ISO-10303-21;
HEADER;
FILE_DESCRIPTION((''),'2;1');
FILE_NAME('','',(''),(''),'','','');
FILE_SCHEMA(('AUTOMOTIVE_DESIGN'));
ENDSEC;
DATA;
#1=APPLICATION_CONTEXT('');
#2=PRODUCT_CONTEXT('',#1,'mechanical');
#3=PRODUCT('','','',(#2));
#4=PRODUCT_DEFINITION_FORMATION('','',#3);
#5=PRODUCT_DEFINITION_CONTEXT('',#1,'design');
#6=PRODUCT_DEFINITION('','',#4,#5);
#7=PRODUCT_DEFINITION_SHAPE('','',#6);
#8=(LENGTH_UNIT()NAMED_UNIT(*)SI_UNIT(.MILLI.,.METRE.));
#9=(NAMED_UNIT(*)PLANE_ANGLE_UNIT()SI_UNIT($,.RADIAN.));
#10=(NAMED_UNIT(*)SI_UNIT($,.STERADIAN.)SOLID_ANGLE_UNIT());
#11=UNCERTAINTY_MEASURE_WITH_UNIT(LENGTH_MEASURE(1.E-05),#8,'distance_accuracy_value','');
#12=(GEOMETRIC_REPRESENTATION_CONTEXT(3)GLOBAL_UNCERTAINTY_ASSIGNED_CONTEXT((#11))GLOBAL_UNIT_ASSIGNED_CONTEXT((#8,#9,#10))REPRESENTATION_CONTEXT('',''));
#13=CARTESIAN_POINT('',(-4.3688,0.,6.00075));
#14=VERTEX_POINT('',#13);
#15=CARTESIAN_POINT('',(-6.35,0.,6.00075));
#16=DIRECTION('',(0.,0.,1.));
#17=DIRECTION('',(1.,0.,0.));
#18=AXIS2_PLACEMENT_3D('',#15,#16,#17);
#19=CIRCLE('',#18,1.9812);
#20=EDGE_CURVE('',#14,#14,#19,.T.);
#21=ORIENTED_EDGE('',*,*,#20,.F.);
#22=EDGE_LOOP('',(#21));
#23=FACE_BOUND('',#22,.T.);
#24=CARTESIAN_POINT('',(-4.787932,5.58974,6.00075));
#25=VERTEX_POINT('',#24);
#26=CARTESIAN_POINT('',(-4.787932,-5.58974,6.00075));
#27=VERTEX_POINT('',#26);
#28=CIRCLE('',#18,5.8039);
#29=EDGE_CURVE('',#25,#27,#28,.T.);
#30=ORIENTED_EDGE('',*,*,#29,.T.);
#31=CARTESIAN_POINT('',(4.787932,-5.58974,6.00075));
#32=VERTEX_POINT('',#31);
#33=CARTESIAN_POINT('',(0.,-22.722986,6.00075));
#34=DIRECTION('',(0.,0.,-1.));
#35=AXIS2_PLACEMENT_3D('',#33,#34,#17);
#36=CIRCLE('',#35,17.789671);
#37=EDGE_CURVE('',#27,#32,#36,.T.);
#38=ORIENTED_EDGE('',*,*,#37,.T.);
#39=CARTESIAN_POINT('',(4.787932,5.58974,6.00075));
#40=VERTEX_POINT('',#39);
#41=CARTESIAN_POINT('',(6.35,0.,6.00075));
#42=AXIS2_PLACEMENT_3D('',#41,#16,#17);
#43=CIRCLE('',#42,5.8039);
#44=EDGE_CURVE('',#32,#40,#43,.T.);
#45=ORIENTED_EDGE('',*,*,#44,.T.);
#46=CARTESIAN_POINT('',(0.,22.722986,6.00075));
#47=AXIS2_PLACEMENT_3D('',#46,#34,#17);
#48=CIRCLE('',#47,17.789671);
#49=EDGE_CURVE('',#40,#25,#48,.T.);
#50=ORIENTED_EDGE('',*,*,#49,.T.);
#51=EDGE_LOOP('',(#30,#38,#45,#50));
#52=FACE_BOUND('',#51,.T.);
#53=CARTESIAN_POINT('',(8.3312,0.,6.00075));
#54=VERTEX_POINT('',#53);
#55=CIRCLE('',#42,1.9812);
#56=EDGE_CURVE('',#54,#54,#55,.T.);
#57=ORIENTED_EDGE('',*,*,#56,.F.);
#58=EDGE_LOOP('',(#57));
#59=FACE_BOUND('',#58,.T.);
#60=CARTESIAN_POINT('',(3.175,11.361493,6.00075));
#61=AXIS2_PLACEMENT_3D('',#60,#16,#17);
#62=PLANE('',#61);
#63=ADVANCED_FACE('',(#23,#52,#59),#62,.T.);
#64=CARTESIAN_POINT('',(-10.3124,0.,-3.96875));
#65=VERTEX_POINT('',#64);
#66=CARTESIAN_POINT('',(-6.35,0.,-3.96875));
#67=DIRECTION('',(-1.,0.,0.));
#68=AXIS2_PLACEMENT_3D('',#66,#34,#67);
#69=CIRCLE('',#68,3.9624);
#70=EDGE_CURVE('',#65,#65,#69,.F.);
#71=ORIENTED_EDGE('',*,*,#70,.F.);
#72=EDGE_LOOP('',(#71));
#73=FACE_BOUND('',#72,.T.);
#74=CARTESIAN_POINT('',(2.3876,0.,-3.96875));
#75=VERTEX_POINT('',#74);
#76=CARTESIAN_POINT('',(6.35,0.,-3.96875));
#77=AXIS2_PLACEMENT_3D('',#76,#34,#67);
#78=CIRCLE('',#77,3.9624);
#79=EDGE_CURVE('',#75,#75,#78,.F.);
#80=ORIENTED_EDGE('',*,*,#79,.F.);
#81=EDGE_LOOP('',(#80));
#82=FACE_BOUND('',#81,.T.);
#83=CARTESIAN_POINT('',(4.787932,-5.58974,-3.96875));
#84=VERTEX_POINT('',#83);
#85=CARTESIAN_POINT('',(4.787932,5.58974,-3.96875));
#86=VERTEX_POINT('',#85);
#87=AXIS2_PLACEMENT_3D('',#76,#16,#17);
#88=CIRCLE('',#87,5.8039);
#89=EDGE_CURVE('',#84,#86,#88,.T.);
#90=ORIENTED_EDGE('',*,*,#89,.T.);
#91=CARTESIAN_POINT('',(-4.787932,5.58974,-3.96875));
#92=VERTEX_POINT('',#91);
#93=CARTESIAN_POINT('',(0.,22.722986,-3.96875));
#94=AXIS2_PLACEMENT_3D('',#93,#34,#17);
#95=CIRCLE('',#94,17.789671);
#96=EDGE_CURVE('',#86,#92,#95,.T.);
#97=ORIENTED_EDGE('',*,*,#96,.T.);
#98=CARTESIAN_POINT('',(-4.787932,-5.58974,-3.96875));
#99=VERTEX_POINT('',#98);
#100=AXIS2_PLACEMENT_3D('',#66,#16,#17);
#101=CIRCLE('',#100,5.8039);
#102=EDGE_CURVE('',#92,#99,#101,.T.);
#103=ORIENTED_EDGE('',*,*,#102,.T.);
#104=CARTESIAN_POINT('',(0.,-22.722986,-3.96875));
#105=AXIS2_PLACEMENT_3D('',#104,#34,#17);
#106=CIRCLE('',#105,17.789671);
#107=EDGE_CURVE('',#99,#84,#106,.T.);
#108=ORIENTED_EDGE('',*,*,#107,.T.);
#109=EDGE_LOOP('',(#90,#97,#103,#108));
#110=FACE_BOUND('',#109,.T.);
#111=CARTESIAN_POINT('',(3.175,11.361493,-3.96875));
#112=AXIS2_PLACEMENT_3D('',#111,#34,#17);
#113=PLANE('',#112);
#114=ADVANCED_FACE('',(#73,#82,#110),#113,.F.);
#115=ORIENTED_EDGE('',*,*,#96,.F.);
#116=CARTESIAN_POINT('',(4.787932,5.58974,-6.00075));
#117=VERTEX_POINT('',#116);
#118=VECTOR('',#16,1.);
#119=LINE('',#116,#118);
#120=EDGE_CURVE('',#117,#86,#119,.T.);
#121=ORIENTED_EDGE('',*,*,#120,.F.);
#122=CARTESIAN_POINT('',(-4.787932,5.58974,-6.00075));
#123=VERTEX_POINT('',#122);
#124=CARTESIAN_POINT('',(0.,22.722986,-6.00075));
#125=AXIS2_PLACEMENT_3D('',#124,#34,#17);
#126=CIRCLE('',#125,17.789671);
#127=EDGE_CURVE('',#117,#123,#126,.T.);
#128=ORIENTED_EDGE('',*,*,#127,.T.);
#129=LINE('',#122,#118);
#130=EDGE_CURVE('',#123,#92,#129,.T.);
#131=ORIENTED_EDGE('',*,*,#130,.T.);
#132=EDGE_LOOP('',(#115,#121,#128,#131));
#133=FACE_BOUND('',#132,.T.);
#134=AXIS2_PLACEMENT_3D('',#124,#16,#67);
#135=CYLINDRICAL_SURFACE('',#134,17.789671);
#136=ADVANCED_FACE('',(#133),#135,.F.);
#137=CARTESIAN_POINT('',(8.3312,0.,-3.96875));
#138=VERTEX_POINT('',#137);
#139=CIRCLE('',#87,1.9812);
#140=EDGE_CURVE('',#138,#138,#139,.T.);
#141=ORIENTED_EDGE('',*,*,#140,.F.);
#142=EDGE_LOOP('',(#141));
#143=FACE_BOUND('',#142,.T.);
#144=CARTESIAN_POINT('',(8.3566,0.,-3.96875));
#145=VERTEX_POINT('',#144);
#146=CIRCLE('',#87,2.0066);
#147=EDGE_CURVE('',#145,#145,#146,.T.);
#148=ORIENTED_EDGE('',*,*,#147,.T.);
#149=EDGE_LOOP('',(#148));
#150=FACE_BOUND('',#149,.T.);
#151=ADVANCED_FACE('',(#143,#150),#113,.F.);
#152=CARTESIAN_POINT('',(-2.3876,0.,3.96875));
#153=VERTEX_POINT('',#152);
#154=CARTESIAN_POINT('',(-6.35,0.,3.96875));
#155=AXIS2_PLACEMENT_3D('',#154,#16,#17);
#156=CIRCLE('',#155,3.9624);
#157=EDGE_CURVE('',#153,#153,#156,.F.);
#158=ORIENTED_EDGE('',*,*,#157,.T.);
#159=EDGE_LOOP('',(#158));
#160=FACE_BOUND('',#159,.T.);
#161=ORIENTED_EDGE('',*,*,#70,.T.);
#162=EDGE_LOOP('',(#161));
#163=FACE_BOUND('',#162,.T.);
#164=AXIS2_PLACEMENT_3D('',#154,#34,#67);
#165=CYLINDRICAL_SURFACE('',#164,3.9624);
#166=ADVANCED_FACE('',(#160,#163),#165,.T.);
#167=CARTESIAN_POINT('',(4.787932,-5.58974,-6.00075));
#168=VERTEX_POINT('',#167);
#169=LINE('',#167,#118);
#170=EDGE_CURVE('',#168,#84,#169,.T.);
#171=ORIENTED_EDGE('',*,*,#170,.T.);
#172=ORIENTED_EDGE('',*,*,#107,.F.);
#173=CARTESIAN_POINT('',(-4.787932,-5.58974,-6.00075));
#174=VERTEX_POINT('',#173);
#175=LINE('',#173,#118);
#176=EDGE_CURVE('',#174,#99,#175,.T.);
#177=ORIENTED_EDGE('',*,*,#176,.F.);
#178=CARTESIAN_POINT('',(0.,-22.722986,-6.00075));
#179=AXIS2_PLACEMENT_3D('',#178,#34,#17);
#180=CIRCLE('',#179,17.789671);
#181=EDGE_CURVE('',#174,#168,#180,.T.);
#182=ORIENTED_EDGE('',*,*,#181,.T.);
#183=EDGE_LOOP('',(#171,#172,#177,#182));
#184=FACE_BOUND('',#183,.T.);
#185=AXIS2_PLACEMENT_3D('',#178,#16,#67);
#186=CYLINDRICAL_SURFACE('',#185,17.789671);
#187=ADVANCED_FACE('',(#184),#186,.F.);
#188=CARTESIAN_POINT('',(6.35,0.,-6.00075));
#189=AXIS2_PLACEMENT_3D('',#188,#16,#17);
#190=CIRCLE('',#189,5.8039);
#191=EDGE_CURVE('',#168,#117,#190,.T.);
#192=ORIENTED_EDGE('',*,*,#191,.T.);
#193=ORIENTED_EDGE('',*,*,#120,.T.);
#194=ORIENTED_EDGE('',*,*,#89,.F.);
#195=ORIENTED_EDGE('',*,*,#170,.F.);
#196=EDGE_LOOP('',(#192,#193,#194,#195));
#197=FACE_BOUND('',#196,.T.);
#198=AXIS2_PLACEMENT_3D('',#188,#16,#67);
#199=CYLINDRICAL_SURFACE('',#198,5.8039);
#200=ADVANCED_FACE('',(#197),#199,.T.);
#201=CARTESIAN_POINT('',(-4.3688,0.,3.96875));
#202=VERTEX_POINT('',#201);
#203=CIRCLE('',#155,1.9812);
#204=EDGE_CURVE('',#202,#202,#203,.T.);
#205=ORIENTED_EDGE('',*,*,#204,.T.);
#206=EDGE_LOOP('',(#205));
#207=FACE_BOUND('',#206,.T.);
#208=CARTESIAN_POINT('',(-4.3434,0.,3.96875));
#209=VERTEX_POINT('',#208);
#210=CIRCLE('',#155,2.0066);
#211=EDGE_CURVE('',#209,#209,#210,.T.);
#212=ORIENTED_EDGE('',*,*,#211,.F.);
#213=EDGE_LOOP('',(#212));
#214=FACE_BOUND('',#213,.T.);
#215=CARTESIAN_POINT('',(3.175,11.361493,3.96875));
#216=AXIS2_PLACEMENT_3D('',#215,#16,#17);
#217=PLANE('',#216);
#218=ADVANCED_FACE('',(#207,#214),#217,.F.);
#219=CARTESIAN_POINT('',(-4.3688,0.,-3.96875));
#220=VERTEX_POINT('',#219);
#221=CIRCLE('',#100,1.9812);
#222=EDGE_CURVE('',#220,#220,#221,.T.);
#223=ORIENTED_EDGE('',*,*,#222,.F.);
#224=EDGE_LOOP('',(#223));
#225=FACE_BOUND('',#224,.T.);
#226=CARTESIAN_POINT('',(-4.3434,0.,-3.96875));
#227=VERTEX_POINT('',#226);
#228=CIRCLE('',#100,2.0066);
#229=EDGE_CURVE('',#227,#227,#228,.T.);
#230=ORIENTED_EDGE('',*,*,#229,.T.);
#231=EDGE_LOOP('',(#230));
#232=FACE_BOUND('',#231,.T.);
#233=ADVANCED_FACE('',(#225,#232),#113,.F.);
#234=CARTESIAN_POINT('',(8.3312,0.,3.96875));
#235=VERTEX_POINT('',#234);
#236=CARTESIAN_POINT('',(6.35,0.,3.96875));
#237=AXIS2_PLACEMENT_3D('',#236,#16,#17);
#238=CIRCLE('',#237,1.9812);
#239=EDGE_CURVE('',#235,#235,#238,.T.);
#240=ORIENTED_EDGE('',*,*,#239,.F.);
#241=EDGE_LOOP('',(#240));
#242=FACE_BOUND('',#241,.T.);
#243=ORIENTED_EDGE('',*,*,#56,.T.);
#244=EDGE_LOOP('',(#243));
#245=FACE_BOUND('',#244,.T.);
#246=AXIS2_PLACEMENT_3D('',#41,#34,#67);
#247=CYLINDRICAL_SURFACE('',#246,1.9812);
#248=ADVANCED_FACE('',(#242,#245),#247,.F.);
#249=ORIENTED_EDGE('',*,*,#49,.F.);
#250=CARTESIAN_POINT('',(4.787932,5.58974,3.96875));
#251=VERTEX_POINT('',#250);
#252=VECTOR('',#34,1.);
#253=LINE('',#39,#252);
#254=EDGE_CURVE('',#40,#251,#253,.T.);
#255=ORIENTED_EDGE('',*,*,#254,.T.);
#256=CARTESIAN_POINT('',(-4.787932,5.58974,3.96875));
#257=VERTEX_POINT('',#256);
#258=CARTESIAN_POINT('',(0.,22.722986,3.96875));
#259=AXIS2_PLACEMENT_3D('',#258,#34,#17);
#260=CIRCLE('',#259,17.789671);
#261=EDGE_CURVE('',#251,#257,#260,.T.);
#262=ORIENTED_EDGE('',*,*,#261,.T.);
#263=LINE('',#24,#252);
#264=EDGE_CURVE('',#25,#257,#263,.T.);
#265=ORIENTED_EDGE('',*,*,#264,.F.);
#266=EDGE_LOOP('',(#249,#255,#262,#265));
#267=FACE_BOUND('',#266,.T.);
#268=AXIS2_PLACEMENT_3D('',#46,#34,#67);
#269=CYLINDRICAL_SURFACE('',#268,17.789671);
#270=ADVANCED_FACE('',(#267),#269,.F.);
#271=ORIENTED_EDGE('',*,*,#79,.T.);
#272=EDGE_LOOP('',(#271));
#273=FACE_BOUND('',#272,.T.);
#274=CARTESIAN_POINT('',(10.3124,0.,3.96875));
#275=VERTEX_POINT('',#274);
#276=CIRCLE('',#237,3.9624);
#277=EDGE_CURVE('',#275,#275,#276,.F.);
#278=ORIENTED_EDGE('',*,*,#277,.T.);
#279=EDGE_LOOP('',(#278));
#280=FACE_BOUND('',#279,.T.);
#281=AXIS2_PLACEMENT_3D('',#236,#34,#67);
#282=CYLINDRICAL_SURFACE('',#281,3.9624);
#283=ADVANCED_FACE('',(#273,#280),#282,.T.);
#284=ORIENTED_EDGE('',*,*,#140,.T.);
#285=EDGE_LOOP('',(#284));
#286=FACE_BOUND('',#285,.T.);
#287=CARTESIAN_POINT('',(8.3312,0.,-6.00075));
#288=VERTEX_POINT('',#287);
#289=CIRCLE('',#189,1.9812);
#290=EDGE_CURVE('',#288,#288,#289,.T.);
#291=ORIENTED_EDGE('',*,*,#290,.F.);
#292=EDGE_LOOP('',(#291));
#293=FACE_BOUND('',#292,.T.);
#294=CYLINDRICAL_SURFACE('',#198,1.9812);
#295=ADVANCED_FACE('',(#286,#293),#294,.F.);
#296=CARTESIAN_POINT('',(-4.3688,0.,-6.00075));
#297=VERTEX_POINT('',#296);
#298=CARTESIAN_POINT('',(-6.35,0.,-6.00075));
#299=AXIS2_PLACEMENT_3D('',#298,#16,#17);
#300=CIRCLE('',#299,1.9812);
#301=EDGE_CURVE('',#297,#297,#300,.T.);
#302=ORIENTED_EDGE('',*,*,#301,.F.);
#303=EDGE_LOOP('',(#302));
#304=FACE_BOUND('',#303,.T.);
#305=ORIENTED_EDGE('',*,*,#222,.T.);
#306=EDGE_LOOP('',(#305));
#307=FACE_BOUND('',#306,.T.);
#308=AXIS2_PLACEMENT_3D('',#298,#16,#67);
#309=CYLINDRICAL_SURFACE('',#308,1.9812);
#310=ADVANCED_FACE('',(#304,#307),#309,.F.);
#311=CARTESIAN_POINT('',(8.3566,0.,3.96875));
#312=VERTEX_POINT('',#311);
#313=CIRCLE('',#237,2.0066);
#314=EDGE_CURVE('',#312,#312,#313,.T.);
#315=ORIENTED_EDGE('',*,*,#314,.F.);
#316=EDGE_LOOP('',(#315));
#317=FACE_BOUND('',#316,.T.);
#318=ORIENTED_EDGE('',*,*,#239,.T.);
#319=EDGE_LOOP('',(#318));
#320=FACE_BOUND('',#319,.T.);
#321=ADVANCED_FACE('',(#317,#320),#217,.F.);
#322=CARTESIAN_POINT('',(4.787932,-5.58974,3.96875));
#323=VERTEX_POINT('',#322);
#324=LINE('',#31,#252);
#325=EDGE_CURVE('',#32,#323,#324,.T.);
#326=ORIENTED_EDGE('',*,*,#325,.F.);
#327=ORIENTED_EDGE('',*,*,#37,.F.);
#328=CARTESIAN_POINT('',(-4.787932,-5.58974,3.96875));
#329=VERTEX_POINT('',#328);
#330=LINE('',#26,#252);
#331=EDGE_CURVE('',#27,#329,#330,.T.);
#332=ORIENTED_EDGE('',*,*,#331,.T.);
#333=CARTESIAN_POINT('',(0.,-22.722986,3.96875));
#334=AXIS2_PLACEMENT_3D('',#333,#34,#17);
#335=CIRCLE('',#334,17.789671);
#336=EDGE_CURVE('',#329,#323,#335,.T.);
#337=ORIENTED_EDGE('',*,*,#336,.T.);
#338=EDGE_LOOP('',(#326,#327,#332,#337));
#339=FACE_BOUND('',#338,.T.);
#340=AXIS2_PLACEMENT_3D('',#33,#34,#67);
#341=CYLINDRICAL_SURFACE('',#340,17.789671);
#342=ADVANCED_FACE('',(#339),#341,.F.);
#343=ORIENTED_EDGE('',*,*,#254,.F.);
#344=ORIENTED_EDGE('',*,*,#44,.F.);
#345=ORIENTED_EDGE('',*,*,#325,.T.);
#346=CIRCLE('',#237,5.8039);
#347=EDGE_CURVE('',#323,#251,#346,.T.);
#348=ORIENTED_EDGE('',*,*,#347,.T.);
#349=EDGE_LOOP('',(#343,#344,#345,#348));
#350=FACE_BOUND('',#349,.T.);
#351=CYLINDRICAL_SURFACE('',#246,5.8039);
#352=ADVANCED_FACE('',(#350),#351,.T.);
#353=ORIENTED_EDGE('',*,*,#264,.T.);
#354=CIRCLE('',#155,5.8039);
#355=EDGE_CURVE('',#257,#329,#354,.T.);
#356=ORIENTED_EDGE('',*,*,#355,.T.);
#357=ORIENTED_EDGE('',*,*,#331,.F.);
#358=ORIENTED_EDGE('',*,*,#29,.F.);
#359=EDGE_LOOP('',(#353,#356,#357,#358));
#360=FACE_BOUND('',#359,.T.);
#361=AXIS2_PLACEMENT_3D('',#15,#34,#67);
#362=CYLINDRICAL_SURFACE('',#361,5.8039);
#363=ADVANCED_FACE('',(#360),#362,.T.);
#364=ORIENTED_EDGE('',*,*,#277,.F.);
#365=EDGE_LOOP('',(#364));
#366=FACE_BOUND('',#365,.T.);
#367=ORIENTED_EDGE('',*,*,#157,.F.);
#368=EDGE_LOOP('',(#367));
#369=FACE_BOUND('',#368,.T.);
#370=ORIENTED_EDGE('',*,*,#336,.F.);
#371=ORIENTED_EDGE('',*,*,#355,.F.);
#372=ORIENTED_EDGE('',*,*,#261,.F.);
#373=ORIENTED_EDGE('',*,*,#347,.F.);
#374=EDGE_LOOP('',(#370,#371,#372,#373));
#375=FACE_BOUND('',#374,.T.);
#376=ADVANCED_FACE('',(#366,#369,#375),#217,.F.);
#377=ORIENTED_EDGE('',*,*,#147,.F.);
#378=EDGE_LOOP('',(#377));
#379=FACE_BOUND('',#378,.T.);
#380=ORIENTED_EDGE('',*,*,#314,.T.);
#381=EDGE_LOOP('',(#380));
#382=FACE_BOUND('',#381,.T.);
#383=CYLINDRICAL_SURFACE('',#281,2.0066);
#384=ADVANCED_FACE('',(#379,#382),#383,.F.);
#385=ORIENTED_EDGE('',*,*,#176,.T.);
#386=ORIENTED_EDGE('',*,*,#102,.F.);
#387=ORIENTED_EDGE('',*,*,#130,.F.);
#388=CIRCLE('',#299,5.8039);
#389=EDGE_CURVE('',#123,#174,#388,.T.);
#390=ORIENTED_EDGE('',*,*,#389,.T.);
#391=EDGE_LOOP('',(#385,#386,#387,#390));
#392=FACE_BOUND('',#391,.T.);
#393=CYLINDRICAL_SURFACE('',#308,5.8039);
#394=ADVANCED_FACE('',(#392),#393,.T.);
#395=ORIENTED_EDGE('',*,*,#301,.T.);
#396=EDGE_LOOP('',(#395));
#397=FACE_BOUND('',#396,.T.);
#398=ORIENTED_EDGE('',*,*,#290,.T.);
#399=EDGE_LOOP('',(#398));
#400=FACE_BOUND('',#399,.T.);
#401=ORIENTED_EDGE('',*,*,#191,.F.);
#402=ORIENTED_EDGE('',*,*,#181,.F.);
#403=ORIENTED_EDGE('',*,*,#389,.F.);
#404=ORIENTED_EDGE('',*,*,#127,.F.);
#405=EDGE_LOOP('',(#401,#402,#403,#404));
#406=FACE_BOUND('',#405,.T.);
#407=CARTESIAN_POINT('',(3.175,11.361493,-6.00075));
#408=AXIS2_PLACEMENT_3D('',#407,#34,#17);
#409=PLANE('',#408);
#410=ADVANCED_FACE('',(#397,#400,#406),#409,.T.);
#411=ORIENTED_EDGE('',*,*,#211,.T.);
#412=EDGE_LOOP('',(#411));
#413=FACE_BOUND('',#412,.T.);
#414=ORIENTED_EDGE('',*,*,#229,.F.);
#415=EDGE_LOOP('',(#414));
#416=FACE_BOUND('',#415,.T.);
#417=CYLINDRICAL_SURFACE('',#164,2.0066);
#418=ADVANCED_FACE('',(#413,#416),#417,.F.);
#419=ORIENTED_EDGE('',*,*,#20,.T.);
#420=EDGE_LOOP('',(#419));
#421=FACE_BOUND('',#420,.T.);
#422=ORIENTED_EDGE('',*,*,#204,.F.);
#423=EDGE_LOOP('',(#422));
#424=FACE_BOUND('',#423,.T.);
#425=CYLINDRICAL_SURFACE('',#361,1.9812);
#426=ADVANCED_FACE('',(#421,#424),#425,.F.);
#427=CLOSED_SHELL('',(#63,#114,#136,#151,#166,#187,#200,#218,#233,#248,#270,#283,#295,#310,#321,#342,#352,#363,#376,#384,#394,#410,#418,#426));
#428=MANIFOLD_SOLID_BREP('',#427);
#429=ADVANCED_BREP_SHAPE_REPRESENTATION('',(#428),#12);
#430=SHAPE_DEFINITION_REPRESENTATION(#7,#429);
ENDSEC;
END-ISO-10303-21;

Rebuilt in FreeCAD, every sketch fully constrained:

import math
import FreeCAD as App
import Part
import Sketcher
from FreeCAD import Vector
Q = App.Units.Quantity

doc = App.newDocument("Part")
params = doc.addObject("Spreadsheet::Sheet", "Params")
for row, (alias, value) in enumerate([
    ("sketch1_diameter", "0.312 in"),
    ("sketch1_diameter2", "0.158 in"),
    ("pad1_length", "0.3125 in"),
    ("sketch2_diameter", "0.312 in"),
    ("sketch2_diameter2", "0.158 in"),
    ("pad2_length", "0.3125 in"),
    ("sketch3_diameter", "0.156 in"),
    ("pad3_length", "0.08 in"),
], start=1):
    params.set(f"A{row}", alias)
    params.set(f"B{row}", "=" + value)
    params.setAlias(f"B{row}", alias)

body = doc.addObject("PartDesign::Body", "Body")

# Sketch on XY plane
sketch1 = body.newObject("Sketcher::SketchObject", "Sketch")
sketch1.AttachmentSupport = (doc.getObject("XY_Plane"), [""])
sketch1.MapMode = "FlatFace"
sketch1.addGeometry([
    Part.Circle(Vector(-6.3, 0, 0), Vector(0, 0, 1), 4),
    Part.Circle(Vector(-6.3, 0, 0), Vector(0, 0, 1), 2),
], False)
sketch1.addConstraint([
    Sketcher.Constraint("Coincident", 1, 3, 0, 3),
    Sketcher.Constraint("PointOnObject", 0, 3, -1),
    Sketcher.Constraint("Diameter", 0, Q("0.312 in")),
    Sketcher.Constraint("Diameter", 1, Q("0.158 in")),
    Sketcher.Constraint("DistanceX", 0, 3, -1, 1, Q("0.25 in")),
])
sketch1.setExpression("Constraints[2]", "Params.sketch1_diameter")
sketch1.setExpression("Constraints[3]", "Params.sketch1_diameter2")
pad1 = body.newObject("PartDesign::Pad", "Pad")
pad1.Profile = sketch1
pad1.setExpression("Length", "Params.pad1_length")
pad1.Midplane = True
body2 = doc.addObject("PartDesign::Body", "Body001")

# Sketch on XY plane
sketch2 = body2.newObject("Sketcher::SketchObject", "Sketch001")
sketch2.AttachmentSupport = (doc.getObject("XY_Plane001"), [""])
sketch2.MapMode = "FlatFace"
sketch2.addGeometry([
    Part.Circle(Vector(6.3, 0, 0), Vector(0, 0, 1), 4),
    Part.Circle(Vector(6.3, 0, 0), Vector(0, 0, 1), 2),
], False)
sketch2.addConstraint([
    Sketcher.Constraint("Coincident", 1, 3, 0, 3),
    Sketcher.Constraint("PointOnObject", 0, 3, -1),
    Sketcher.Constraint("Diameter", 0, Q("0.312 in")),
    Sketcher.Constraint("Diameter", 1, Q("0.158 in")),
    Sketcher.Constraint("DistanceX", -1, 1, 0, 3, Q("0.25 in")),
])
sketch2.setExpression("Constraints[2]", "Params.sketch2_diameter")
sketch2.setExpression("Constraints[3]", "Params.sketch2_diameter2")
pad2 = body2.newObject("PartDesign::Pad", "Pad001")
pad2.Profile = sketch2
pad2.setExpression("Length", "Params.pad2_length")
pad2.Midplane = True
body3 = doc.addObject("PartDesign::Body", "Body002")

# Sketch on XY plane
sketch3 = body3.newObject("Sketcher::SketchObject", "Sketch002")
sketch3.AttachmentSupport = (doc.getObject("XY_Plane002"), [""])
sketch3.MapMode = "FlatFace"
sketch3.AttachmentOffset = App.Placement(Vector(0, 0, 0.15625 * 25.4), App.Rotation())
sketch3.addGeometry([
    Part.ArcOfCircle(Part.Circle(Vector(-6.3, 0, 0), Vector(0, 0, 1), 5.8), math.radians(74), math.radians(286)),  # 0
    Part.ArcOfCircle(Part.Circle(Vector(0, -22.7, 0), Vector(0, 0, 1), 17.8), math.radians(74), math.radians(106)),  # 1
    Part.ArcOfCircle(Part.Circle(Vector(6.3, 0, 0), Vector(0, 0, 1), 5.8), math.radians(-106), math.radians(106)),  # 2
    Part.ArcOfCircle(Part.Circle(Vector(0, 22.7, 0), Vector(0, 0, 1), 17.8), math.radians(-106), math.radians(-74)),  # 3
    Part.Circle(Vector(-6.3, 0, 0), Vector(0, 0, 1), 2),  # 4
    Part.Circle(Vector(6.3, 0, 0), Vector(0, 0, 1), 2),  # 5
], False)
sketch3.addConstraint([
    Sketcher.Constraint("Tangent", 0, 2, 1, 2),
    Sketcher.Constraint("Tangent", 1, 1, 2, 1),
    Sketcher.Constraint("Tangent", 2, 2, 3, 2),
    Sketcher.Constraint("Tangent", 3, 1, 0, 1),
    Sketcher.Constraint("Coincident", 4, 3, 0, 3),
    Sketcher.Constraint("Coincident", 5, 3, 2, 3),
    Sketcher.Constraint("Equal", 0, 2),
    Sketcher.Constraint("Equal", 1, 3),
    Sketcher.Constraint("Equal", 4, 5),
    Sketcher.Constraint("Symmetric", 0, 3, 2, 3, -1, 1),
    Sketcher.Constraint("PointOnObject", 0, 3, -1),
    Sketcher.Constraint("Diameter", 4, Q("0.156 in")),
    Sketcher.Constraint("Radius", 0, Q("0.2285 in")),
    Sketcher.Constraint("DistanceX", 0, 3, 2, 3, Q("0.5 in")),
    Sketcher.Constraint("Radius", 1, Q("17.789671 mm")),
])
sketch3.setExpression("Constraints[11]", "Params.sketch3_diameter")
pad3 = body3.newObject("PartDesign::Pad", "Pad002")
pad3.Profile = sketch3
pad3.setExpression("Length", "Params.pad3_length")
body4 = doc.addObject("PartDesign::Body", "Body003")
body4.AllowCompound = True
doc.recompute()

mirroring = doc.addObject("Part::Mirroring", "Mirroring")
mirroring.Source = body3
mirroring.Base = Vector(0, 0, 0)
mirroring.Normal = Vector(0, 0, 1)
body4.BaseFeature = mirroring
doc.recompute()

boolean = body4.newObject("PartDesign::Boolean", "Boolean")
boolean.Type = "Fuse"
boolean.addObjects([body3])
doc.recompute()

boolean2 = body4.newObject("PartDesign::Boolean", "Boolean001")
boolean2.Type = "Fuse"
boolean2.addObjects([body2])
doc.recompute()

boolean3 = body4.newObject("PartDesign::Boolean", "Boolean002")
boolean3.Type = "Fuse"
boolean3.addObjects([body])
mirroring.Visibility = False

doc.recompute()
